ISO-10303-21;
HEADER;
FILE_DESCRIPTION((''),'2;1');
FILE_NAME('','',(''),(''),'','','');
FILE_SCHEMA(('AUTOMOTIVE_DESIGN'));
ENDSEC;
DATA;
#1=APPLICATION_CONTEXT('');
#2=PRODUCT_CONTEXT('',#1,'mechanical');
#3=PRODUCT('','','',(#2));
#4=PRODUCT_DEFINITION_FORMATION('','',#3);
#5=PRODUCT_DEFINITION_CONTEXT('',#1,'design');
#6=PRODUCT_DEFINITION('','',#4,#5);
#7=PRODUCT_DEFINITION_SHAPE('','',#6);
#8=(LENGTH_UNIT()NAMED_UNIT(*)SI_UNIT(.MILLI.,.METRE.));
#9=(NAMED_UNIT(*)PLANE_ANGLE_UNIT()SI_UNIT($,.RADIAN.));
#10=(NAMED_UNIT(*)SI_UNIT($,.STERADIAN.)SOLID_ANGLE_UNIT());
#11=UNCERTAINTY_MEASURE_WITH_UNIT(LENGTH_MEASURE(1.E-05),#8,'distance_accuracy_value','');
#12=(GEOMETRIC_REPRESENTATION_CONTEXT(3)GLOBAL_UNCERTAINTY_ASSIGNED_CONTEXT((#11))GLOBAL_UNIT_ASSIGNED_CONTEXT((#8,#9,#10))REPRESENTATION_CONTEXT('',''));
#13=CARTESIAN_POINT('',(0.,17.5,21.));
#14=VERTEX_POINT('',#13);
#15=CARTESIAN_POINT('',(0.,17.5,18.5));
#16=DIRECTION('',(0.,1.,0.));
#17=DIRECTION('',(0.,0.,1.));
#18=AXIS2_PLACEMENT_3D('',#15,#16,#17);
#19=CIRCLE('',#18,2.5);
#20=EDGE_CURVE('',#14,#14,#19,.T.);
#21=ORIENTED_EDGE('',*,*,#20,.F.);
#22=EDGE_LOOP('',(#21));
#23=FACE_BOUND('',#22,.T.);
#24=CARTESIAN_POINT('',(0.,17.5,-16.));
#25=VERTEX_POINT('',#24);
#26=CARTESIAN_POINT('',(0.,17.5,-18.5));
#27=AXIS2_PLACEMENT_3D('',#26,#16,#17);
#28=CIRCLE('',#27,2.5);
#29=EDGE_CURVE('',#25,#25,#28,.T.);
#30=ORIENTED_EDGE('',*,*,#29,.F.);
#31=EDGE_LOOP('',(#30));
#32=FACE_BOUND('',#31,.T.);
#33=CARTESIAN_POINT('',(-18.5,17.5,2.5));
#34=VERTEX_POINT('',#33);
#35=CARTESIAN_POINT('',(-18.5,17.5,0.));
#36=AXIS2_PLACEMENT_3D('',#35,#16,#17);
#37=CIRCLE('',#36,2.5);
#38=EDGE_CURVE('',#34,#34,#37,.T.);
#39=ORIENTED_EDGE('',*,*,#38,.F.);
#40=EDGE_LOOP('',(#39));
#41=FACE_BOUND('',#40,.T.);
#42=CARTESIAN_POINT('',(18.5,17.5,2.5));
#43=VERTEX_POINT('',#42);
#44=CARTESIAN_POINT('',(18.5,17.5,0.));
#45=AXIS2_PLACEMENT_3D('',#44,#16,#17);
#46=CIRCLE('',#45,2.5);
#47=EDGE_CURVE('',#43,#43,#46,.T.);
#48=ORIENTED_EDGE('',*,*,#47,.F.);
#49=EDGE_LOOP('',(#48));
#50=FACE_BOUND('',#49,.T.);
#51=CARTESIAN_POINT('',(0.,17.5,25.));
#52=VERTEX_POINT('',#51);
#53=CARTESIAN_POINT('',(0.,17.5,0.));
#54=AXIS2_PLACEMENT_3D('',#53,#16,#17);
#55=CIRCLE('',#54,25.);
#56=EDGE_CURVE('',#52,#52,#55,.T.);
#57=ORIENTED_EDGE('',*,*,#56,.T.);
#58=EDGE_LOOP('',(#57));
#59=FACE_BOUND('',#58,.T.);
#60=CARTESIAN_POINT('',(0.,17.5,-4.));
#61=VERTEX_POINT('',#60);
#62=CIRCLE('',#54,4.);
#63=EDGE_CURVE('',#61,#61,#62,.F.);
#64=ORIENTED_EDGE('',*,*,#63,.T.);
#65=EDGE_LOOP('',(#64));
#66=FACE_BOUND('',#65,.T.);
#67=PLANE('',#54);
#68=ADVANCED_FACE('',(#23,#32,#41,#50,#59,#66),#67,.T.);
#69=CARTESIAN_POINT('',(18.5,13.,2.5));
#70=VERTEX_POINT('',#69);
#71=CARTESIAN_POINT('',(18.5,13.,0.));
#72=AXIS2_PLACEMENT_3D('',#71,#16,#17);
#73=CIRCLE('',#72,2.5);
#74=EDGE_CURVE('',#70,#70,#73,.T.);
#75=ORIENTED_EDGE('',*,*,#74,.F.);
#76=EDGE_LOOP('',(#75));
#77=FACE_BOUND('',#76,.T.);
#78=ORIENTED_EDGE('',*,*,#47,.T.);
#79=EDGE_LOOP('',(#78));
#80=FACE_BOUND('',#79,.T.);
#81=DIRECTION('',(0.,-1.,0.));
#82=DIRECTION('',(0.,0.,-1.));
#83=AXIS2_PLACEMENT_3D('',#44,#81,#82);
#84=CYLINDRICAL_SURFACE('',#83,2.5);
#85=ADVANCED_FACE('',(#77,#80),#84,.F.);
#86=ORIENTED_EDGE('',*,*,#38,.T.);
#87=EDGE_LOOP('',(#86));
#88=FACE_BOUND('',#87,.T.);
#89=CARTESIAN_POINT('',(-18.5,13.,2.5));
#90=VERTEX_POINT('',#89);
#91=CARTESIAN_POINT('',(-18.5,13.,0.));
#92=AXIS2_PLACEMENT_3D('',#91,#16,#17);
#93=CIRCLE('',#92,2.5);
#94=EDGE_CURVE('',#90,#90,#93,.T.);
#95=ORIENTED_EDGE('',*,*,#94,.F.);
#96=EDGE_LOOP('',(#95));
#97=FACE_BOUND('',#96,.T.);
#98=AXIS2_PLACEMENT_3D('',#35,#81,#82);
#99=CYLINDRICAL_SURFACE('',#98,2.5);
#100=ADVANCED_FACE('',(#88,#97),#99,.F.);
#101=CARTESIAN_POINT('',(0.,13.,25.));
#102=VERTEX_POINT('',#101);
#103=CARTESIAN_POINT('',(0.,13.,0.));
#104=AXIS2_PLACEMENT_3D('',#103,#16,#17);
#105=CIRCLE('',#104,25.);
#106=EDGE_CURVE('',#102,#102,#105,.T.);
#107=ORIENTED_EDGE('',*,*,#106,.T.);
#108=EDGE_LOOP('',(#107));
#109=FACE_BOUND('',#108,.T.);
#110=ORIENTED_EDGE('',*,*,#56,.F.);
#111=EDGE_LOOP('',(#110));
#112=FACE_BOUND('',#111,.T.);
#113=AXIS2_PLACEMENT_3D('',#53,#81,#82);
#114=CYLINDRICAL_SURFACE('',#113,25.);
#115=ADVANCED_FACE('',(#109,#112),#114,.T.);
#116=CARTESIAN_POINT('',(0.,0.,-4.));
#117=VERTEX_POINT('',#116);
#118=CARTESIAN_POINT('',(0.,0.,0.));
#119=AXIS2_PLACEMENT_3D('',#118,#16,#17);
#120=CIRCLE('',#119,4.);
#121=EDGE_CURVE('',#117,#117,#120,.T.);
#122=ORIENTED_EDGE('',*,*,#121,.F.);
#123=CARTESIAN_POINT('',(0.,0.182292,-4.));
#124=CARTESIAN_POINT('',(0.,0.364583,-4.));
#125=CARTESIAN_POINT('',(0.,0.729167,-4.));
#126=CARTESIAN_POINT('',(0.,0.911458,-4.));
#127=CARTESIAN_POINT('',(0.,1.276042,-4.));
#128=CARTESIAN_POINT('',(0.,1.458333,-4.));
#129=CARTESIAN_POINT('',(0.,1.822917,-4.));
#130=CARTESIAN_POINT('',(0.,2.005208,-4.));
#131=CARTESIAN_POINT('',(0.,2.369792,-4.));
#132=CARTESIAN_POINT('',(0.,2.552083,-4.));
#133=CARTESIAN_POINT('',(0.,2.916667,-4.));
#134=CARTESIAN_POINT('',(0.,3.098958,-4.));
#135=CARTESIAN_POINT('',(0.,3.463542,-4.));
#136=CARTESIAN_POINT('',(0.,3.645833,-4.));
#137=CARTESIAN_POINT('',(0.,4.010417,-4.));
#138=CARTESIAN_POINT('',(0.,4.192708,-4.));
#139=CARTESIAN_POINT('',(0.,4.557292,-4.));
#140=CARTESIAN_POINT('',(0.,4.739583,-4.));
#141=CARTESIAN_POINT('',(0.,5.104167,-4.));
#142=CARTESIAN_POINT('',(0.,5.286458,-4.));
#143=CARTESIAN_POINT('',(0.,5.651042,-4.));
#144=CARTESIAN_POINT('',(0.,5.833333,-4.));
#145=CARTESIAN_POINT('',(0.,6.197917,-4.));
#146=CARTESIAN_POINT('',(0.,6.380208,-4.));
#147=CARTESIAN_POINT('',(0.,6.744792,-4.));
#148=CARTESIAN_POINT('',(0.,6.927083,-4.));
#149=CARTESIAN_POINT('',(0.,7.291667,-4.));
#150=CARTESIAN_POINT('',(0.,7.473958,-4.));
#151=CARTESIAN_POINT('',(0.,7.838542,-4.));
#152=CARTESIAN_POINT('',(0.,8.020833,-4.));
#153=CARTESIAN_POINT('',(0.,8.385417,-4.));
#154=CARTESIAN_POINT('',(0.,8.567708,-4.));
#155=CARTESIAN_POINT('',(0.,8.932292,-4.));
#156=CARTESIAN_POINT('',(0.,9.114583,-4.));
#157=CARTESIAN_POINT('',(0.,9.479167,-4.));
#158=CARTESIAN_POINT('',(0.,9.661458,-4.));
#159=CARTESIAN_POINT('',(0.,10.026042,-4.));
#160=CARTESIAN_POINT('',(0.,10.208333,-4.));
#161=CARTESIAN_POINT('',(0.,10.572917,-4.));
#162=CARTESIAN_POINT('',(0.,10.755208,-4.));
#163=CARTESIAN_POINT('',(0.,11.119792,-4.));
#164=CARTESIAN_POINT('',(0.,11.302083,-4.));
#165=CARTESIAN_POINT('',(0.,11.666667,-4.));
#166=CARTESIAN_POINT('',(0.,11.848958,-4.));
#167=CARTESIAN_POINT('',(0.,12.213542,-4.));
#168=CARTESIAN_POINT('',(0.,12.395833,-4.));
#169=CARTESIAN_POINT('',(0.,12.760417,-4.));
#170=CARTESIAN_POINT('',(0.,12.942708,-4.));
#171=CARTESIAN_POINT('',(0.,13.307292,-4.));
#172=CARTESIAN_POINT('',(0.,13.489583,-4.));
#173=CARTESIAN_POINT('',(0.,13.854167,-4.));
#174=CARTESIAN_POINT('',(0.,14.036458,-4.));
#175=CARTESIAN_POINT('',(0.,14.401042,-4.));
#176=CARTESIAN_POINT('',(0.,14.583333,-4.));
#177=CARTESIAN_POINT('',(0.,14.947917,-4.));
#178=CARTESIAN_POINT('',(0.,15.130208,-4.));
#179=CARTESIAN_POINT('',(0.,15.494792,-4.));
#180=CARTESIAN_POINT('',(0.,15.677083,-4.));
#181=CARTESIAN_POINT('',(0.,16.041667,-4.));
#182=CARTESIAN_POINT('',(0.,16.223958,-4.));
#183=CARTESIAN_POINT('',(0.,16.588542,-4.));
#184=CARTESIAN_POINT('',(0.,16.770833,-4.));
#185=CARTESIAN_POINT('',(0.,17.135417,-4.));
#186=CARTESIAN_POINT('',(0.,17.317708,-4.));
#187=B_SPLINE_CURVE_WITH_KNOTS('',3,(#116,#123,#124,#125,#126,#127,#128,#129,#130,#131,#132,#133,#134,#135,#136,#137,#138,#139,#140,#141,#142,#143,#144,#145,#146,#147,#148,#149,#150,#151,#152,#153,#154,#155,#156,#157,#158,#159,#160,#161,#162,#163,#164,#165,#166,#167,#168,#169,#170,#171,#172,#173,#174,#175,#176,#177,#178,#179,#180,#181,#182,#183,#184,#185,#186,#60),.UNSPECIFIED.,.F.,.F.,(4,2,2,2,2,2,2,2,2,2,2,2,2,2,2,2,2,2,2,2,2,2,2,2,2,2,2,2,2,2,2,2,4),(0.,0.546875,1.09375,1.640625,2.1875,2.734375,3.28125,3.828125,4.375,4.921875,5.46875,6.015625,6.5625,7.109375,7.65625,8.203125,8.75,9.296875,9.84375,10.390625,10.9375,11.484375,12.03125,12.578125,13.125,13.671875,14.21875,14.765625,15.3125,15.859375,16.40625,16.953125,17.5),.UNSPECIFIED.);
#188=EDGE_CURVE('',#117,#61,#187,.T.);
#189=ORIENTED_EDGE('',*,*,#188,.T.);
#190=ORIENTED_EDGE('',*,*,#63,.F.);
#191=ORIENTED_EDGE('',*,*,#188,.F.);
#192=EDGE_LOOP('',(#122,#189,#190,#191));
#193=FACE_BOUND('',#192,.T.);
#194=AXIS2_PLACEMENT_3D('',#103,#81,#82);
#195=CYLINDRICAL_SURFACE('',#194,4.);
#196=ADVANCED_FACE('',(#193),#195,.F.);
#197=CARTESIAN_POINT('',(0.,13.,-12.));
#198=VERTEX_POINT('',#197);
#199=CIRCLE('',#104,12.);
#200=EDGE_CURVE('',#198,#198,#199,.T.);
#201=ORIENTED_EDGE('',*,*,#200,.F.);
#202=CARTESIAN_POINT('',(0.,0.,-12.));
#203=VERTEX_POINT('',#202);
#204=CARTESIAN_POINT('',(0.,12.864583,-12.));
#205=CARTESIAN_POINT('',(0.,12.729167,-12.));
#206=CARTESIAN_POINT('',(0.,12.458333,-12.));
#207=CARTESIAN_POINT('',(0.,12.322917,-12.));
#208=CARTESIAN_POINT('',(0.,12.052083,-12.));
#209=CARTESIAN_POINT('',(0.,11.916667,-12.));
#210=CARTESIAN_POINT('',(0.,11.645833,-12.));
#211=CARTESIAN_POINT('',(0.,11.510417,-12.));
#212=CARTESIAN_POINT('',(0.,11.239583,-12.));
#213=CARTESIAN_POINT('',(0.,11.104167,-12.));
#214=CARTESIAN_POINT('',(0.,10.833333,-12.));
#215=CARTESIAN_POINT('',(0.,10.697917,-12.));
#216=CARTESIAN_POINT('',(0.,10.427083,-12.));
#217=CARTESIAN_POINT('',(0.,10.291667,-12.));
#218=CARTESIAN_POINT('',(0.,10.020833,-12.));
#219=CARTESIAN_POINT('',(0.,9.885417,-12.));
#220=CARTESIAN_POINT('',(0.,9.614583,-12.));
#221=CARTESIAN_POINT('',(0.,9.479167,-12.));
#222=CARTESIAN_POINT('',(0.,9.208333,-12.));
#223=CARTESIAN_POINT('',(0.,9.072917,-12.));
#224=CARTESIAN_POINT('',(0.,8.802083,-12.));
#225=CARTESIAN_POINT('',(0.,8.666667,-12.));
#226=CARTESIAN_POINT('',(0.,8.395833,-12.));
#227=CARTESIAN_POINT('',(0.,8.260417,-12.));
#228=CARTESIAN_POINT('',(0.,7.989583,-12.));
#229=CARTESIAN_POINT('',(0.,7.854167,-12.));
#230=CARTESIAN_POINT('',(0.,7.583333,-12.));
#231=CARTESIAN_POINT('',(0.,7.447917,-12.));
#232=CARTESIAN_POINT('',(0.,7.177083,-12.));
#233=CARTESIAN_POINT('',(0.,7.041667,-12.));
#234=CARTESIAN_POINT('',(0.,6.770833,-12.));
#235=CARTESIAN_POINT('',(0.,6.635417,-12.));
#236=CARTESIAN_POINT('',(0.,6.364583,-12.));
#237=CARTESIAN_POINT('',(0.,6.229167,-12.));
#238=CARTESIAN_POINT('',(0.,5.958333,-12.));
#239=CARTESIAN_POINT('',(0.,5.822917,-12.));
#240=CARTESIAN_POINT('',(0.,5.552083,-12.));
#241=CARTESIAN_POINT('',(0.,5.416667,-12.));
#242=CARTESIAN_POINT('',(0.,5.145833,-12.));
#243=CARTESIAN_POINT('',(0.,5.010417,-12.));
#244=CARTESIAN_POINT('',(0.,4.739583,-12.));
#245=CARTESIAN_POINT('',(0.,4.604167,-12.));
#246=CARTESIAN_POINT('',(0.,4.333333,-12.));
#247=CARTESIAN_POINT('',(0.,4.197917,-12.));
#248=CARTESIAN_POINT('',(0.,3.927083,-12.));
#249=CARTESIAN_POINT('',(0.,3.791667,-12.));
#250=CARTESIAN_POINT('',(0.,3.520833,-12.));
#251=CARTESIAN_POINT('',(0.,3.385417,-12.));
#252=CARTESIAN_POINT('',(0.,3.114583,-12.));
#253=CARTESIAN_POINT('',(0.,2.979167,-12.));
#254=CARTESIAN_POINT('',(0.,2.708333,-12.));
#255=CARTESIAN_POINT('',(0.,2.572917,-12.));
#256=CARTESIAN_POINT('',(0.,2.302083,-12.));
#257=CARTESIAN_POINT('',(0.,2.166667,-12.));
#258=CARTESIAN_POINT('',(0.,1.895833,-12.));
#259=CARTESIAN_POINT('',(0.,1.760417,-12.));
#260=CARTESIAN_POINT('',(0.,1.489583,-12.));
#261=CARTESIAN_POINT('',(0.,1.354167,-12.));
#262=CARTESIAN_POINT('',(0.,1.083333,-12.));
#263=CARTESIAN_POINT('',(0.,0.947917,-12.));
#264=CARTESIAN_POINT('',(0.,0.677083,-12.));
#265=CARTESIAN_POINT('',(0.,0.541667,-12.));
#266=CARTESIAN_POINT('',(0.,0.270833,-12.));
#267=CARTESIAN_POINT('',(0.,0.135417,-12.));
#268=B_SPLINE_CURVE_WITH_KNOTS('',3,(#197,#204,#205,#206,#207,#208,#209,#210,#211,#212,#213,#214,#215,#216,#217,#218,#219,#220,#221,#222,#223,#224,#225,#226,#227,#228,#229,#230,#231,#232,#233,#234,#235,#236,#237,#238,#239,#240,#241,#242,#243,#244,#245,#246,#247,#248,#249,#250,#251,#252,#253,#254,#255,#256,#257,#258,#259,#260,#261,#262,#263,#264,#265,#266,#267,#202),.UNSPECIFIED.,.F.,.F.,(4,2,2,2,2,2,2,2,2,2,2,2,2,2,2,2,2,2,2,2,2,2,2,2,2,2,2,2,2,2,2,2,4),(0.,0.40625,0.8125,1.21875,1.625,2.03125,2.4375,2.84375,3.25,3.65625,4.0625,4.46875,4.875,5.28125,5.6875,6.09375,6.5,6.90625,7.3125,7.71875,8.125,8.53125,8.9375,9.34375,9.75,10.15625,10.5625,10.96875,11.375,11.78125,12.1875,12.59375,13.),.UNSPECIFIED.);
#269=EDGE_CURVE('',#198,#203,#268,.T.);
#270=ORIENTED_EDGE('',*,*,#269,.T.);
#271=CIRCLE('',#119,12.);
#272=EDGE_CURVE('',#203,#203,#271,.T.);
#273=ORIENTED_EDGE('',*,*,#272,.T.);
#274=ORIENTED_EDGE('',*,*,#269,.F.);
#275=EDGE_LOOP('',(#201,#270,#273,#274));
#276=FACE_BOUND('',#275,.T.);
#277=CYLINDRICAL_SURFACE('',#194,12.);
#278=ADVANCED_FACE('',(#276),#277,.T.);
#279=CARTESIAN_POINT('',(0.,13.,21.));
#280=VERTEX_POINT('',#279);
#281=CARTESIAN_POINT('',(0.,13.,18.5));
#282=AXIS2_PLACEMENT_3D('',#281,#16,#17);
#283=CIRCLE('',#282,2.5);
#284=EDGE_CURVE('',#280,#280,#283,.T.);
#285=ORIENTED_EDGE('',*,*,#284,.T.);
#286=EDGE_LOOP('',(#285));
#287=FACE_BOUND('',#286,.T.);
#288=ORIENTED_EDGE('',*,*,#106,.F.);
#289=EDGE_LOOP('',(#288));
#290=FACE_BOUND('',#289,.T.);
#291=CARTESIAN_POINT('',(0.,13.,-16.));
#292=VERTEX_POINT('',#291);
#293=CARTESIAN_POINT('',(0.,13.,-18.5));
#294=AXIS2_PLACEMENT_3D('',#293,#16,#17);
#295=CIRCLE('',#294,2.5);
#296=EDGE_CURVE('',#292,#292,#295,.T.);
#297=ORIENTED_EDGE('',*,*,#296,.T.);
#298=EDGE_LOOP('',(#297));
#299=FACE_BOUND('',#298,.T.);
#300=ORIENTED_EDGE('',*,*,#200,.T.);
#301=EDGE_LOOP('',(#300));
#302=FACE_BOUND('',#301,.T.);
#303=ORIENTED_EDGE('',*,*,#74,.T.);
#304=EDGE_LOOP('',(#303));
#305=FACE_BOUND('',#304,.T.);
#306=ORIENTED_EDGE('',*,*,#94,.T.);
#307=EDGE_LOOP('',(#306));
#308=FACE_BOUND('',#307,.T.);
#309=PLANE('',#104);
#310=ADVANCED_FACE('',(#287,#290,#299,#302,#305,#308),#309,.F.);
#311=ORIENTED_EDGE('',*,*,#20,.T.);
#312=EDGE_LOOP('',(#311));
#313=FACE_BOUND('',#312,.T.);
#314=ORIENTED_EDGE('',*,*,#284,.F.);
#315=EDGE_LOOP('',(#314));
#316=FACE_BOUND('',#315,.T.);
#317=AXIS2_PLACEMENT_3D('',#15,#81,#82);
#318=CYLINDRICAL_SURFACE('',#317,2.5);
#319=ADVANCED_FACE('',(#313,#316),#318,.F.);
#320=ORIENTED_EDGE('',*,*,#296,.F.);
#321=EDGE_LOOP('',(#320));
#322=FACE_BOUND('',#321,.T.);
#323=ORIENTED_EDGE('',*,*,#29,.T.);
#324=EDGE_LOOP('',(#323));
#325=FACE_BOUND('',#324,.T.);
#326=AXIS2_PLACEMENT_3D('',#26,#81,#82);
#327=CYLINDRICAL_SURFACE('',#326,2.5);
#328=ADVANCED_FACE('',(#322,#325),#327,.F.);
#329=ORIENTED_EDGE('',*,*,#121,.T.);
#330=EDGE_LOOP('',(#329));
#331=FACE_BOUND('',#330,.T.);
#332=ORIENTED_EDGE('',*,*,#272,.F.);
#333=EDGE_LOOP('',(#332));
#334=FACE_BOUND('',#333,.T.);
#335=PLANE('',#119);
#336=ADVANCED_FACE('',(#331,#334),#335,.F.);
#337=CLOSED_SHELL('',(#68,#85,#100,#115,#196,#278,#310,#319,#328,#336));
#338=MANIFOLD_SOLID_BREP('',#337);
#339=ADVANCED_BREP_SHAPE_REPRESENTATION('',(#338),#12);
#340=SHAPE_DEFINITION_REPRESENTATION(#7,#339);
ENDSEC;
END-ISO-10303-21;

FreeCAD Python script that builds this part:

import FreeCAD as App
import Part
import Sketcher

doc = App.newDocument("Part")
body = doc.addObject("PartDesign::Body", "Body")

# Sketch on XZ plane
sketch1 = body.newObject("Sketcher::SketchObject", "Sketch")
sketch1.AttachmentSupport = (doc.getObject("XZ_Plane"), [""])
sketch1.MapMode = "FlatFace"
sketch1.addGeometry(Part.Circle(App.Vector(0, 0, 0), App.Vector(0, 0, 1), 12), False)
sketch1.addGeometry(Part.Circle(App.Vector(0, 0, 0), App.Vector(0, 0, 1), 4), False)
sketch1.addConstraint(Sketcher.Constraint("Coincident", 0, 3, -1, 1))
sketch1.addConstraint(Sketcher.Constraint("Coincident", 1, 3, -1, 1))
sketch1.addConstraint(Sketcher.Constraint("Diameter", 0, 24.0))
sketch1.addConstraint(Sketcher.Constraint("Diameter", 1, 8.0))
pad1 = body.newObject("PartDesign::Pad", "Pad")
pad1.Profile = sketch1
pad1.Length = 13
pad1.Reversed = True

# Sketch on XZ plane
sketch2 = body.newObject("Sketcher::SketchObject", "Sketch001")
sketch2.AttachmentSupport = (doc.getObject("XZ_Plane"), [""])
sketch2.MapMode = "FlatFace"
sketch2.AttachmentOffset = App.Placement(App.Vector(0, 0, -13), App.Rotation())
sketch2.addGeometry(Part.Circle(App.Vector(0, 0, 0), App.Vector(0, 0, 1), 25), False)
sketch2.addGeometry(Part.Circle(App.Vector(0, -18.5, 0), App.Vector(0, 0, 1), 2.5), False)
sketch2.addGeometry(Part.Circle(App.Vector(-18.5, 0, 0), App.Vector(0, 0, 1), 2.5), False)
sketch2.addGeometry(Part.Circle(App.Vector(18.5, 0, 0), App.Vector(0, 0, 1), 2.5), False)
sketch2.addGeometry(Part.Circle(App.Vector(0, 0, 0), App.Vector(0, 0, 1), 4), False)
sketch2.addGeometry(Part.Circle(App.Vector(0, 18.5, 0), App.Vector(0, 0, 1), 2.5), False)
sketch2.addConstraint(Sketcher.Constraint("Coincident", 0, 3, -1, 1))
sketch2.addConstraint(Sketcher.Constraint("Coincident", 4, 3, -1, 1))
sketch2.addConstraint(Sketcher.Constraint("Equal", 1, 2))
sketch2.addConstraint(Sketcher.Constraint("Equal", 2, 3))
sketch2.addConstraint(Sketcher.Constraint("Equal", 3, 5))
sketch2.addConstraint(Sketcher.Constraint("Symmetric", 2, 3, 3, 3, -1, 1))
sketch2.addConstraint(Sketcher.Constraint("Symmetric", 1, 3, 5, 3, -1, 1))
sketch2.addConstraint(Sketcher.Constraint("PointOnObject", 1, 3, -2))
sketch2.addConstraint(Sketcher.Constraint("PointOnObject", 2, 3, -1))
sketch2.addConstraint(Sketcher.Constraint("Diameter", 0, 50.0))
sketch2.addConstraint(Sketcher.Constraint("Diameter", 1, 5.0))
sketch2.addConstraint(Sketcher.Constraint("Diameter", 4, 8.0))
sketch2.addConstraint(Sketcher.Constraint("DistanceX", 2, 3, 3, 3, 37.0))
sketch2.addConstraint(Sketcher.Constraint("DistanceY", 1, 3, 5, 3, 37.0))
pad2 = body.newObject("PartDesign::Pad", "Pad001")
pad2.Profile = sketch2
pad2.Length = 4.5
pad2.Reversed = True

doc.recompute()
